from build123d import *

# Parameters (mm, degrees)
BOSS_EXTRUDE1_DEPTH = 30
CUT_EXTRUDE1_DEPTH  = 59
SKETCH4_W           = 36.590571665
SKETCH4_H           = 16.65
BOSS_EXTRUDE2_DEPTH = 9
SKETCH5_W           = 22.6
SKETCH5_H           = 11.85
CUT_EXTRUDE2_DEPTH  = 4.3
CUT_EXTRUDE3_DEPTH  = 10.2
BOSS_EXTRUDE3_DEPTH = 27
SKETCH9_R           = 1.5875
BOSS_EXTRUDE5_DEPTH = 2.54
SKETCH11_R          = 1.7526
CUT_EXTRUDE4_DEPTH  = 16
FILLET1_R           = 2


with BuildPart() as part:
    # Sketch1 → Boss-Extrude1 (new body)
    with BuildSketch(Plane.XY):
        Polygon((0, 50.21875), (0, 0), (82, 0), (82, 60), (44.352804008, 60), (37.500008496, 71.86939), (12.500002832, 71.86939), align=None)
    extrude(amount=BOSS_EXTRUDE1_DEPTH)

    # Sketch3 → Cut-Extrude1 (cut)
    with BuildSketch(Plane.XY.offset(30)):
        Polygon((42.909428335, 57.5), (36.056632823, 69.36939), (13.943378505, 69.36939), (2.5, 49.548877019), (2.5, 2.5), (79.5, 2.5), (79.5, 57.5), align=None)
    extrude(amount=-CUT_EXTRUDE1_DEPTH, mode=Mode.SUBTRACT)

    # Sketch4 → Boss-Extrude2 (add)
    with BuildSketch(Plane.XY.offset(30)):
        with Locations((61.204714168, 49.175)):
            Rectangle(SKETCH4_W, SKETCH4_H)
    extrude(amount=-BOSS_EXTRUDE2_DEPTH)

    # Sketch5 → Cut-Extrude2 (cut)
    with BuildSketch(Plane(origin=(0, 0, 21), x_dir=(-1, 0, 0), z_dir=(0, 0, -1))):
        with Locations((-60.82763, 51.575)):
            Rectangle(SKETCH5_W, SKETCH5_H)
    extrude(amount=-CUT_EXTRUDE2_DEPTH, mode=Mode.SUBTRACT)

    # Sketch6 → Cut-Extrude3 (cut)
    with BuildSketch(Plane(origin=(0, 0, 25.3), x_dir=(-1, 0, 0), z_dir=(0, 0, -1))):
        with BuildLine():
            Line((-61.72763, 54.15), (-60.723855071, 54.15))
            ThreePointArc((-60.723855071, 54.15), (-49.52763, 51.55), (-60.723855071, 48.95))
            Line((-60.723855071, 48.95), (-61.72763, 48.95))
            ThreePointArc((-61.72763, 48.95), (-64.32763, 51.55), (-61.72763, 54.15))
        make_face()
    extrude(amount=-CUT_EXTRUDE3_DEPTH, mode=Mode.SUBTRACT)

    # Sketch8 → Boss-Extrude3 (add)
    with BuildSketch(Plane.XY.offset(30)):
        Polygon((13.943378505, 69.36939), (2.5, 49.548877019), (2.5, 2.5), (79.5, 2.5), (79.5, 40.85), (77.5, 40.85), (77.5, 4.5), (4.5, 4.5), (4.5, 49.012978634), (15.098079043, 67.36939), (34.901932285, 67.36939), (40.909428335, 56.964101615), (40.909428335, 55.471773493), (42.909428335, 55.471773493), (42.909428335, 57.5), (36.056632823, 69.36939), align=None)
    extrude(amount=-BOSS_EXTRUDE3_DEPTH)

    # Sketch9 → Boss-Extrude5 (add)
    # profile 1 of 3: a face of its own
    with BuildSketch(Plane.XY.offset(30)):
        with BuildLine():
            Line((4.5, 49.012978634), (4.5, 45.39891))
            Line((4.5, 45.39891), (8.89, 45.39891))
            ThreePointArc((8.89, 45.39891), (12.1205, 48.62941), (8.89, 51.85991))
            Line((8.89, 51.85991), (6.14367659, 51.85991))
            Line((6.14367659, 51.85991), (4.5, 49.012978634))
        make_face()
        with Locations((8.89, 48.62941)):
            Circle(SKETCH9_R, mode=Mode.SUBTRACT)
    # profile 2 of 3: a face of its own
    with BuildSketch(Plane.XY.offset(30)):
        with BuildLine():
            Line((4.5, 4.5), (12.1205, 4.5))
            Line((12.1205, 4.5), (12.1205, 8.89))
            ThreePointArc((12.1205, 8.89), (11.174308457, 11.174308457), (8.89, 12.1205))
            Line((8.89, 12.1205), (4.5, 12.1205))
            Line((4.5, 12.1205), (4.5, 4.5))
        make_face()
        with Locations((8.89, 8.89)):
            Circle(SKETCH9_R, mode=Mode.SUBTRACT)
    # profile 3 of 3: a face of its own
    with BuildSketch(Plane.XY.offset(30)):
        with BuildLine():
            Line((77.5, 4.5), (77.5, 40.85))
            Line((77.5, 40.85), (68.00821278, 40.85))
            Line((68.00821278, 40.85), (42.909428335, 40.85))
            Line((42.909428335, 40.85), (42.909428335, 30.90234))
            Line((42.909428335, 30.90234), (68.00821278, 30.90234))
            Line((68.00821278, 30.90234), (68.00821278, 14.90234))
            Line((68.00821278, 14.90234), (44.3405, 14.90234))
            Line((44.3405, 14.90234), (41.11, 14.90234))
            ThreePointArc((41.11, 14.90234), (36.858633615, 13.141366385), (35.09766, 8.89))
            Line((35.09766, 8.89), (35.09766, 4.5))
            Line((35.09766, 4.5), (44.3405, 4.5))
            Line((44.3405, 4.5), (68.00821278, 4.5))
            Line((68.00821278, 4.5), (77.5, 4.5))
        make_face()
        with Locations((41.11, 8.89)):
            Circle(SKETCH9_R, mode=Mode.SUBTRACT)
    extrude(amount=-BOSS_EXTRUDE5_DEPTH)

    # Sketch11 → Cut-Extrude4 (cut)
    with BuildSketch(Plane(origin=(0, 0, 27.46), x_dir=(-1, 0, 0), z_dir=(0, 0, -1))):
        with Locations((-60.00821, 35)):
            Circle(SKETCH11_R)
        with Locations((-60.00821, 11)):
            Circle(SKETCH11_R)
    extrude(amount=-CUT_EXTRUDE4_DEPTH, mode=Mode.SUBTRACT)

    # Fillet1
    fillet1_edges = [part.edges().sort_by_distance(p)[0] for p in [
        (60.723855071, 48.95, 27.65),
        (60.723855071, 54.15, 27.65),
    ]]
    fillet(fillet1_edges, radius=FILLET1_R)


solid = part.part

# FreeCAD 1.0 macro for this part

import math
import FreeCAD as App
import Part
import Sketcher
Q = App.Units.Quantity


def edges_at(feature, points):
    """Names of the edges that pass closest to the given points."""
    edges = feature.Shape.Edges
    near = lambda p: min(range(len(edges)), key=lambda i: edges[i].distToShape(Part.Vertex(*p))[0])
    return sorted({f"Edge{near(p) + 1}" for p in points})


def add_polygon(sketch, points):
    """Adds a closed chain of lines whose ends are joined by coincident constraints."""
    first, n = sketch.GeometryCount, len(points)
    for a, b in zip(points, points[1:] + points[:1]):
        sketch.addGeometry(Part.LineSegment(App.Vector(*a, 0), App.Vector(*b, 0)), False)
    for i in range(n):
        sketch.addConstraint(Sketcher.Constraint("Coincident", first + i, 2, first + (i + 1) % n, 1))

doc = App.newDocument("Part")
body = doc.addObject("PartDesign::Body", "Body")

# Sketch on XY plane
sketch1 = body.newObject("Sketcher::SketchObject", "Sketch")
sketch1.AttachmentSupport = (doc.getObject("XY_Plane"), [""])
sketch1.MapMode = "FlatFace"
add_polygon(sketch1, [(0, 50), (0, 0), (82, 0), (82, 60), (44, 60), (38, 72), (13, 72)])  # lines 0-6
sketch1.addConstraint([
    Sketcher.Constraint("Vertical", 0),
    Sketcher.Constraint("Horizontal", 1),
    Sketcher.Constraint("Vertical", 2),
    Sketcher.Constraint("Horizontal", 3),
    Sketcher.Constraint("Horizontal", 5),
    Sketcher.Constraint("Coincident", 0, 2, -1, 1),
    Sketcher.Constraint("DistanceX", 1, 1, 1, 2, 82.0),
    Sketcher.Constraint("DistanceY", 2, 1, 2, 2, 60.0),
    Sketcher.Constraint("Angle", 4, Q("120 deg")),
    Sketcher.Constraint("Angle", 6, Q("-120 deg")),
    Sketcher.Constraint("DistanceY", 0, 2, 0, 1, 50.21875),
    Sketcher.Constraint("DistanceX", 5, 2, 3, 2, 31.852801),
    Sketcher.Constraint("Distance", 4, 13.705591),
])
pad1 = body.newObject("PartDesign::Pad", "Pad")
pad1.Profile = sketch1
pad1.Length = 30

# Sketch on XY plane
sketch2 = body.newObject("Sketcher::SketchObject", "Sketch001")
sketch2.AttachmentSupport = (doc.getObject("XY_Plane"), [""])
sketch2.MapMode = "FlatFace"
sketch2.AttachmentOffset = App.Placement(App.Vector(0, 0, 30), App.Rotation())
add_polygon(sketch2, [(43, 58), (36, 69), (14, 69), (2, 50), (2, 2), (80, 2), (80, 58)])  # lines 0-6
sketch2.addConstraint([
    Sketcher.Constraint("Horizontal", 1),
    Sketcher.Constraint("Vertical", 3),
    Sketcher.Constraint("Horizontal", 4),
    Sketcher.Constraint("Vertical", 5),
    Sketcher.Constraint("Horizontal", 6),
    Sketcher.Constraint("DistanceX", 4, 1, 4, 2, 77.0),
    Sketcher.Constraint("DistanceY", 5, 1, 5, 2, 55.0),
    Sketcher.Constraint("Angle", 0, Q("120 deg")),
    Sketcher.Constraint("Angle", 2, Q("-120 deg")),
    Sketcher.Constraint("DistanceX", -1, 1, 2, 2, 2.5),
    Sketcher.Constraint("DistanceY", -1, 1, 3, 2, 2.5),
    Sketcher.Constraint("DistanceX", 6, 2, 6, 1, 36.590572),
    Sketcher.Constraint("Distance", 0, 13.705591),
    Sketcher.Constraint("DistanceX", 1, 2, 1, 1, 22.113254),
])
pocket1 = body.newObject("PartDesign::Pocket", "Pocket")
pocket1.Profile = sketch2
pocket1.Length = 59

# Sketch on XY plane
sketch3 = body.newObject("Sketcher::SketchObject", "Sketch002")
sketch3.AttachmentSupport = (doc.getObject("XY_Plane"), [""])
sketch3.MapMode = "FlatFace"
sketch3.AttachmentOffset = App.Placement(App.Vector(0, 0, 30), App.Rotation())
add_polygon(sketch3, [(43, 58), (43, 41), (80, 41), (80, 58)])  # lines 0-3
sketch3.addConstraint([
    Sketcher.Constraint("Vertical", 0),
    Sketcher.Constraint("Horizontal", 1),
    Sketcher.Constraint("Vertical", 2),
    Sketcher.Constraint("Horizontal", 3),
    Sketcher.Constraint("DistanceY", 0, 2, 0, 1, 16.65),
    Sketcher.Constraint("DistanceX", -1, 1, 1, 2, 79.5),
    Sketcher.Constraint("DistanceY", -1, 1, 2, 2, 57.5),
    Sketcher.Constraint("DistanceX", 1, 1, 1, 2, 36.590572),
])
pad2 = body.newObject("PartDesign::Pad", "Pad001")
pad2.Profile = sketch3
pad2.Length = 9
pad2.Reversed = True

# Sketch on XY plane
sketch4 = body.newObject("Sketcher::SketchObject", "Sketch003")
sketch4.AttachmentSupport = (doc.getObject("XY_Plane"), [""])
sketch4.MapMode = "FlatFace"
sketch4.AttachmentOffset = App.Placement(App.Vector(0, 0, 21), App.Rotation())
add_polygon(sketch4, [(72, 58), (72, 46), (50, 46), (50, 58)])  # lines 0-3
sketch4.addConstraint([
    Sketcher.Constraint("Vertical", 0),
    Sketcher.Constraint("Horizontal", 1),
    Sketcher.Constraint("Vertical", 2),
    Sketcher.Constraint("Horizontal", 3),
    Sketcher.Constraint("DistanceX", 1, 2, 1, 1, 22.6),
    Sketcher.Constraint("DistanceY", 0, 2, 0, 1, 11.85),
    Sketcher.Constraint("DistanceY", -1, 1, 2, 2, 57.5),
    Sketcher.Constraint("DistanceX", -1, 1, 0, 2, 72.12763),
])
pocket2 = body.newObject("PartDesign::Pocket", "Pocket001")
pocket2.Profile = sketch4
pocket2.Length = 4.3
pocket2.Reversed = True

# Sketch on XY plane
sketch5 = body.newObject("Sketcher::SketchObject", "Sketch004")
sketch5.AttachmentSupport = (doc.getObject("XY_Plane"), [""])
sketch5.MapMode = "FlatFace"
sketch5.AttachmentOffset = App.Placement(App.Vector(0, 0, 25.3), App.Rotation())
sketch5.addGeometry([
    Part.LineSegment(App.Vector(60.7, 54.1, 0), App.Vector(61.7, 54.1, 0)),
    Part.ArcOfCircle(Part.Circle(App.Vector(61.7, 51.5, 0), App.Vector(0, 0, 1), 2.6), math.radians(-90), math.radians(90)),
    Part.LineSegment(App.Vector(61.7, 49, 0), App.Vector(60.7, 49, 0)),
    Part.ArcOfCircle(Part.Circle(App.Vector(55.4, 51.5, 0), App.Vector(0, 0, 1), 5.9), math.radians(26), math.radians(334)),
], False)
sketch5.addConstraint([
    Sketcher.Constraint("Tangent", 0, 2, 1, 2),
    Sketcher.Constraint("Tangent", 1, 1, 2, 1),
    Sketcher.Constraint("Coincident", 2, 2, 3, 2),
    Sketcher.Constraint("Coincident", 3, 1, 0, 1),
    Sketcher.Constraint("Horizontal", 0),
    Sketcher.Constraint("Horizontal", 2),
    Sketcher.Constraint("Horizontal", 1, 3, 3, 3),
    Sketcher.Constraint("Radius", 1, 2.6),
    Sketcher.Constraint("Radius", 3, 5.9),
    Sketcher.Constraint("DistanceX", 3, 3, 1, 3, 6.3),
    Sketcher.Constraint("DistanceY", -1, 1, 1, 3, 51.55),
    Sketcher.Constraint("DistanceX", -1, 1, 1, 3, 61.72763),
])
pocket3 = body.newObject("PartDesign::Pocket", "Pocket002")
pocket3.Profile = sketch5
pocket3.Length = 10.2
pocket3.Reversed = True

# Sketch on XY plane
sketch6 = body.newObject("Sketcher::SketchObject", "Sketch005")
sketch6.AttachmentSupport = (doc.getObject("XY_Plane"), [""])
sketch6.MapMode = "FlatFace"
sketch6.AttachmentOffset = App.Placement(App.Vector(0, 0, 30), App.Rotation())
add_polygon(sketch6, [(13.9, 69.4), (2.5, 49.5), (2.5, 2.5), (79.5, 2.5), (79.5, 40.9), (77.5, 40.9), (77.5, 4.5), (4.5, 4.5), (4.5, 49), (15.1, 67.4), (34.9, 67.4), (40.9, 57), (40.9, 55.5), (42.9, 55.5), (42.9, 57.5), (36.1, 69.4)])  # lines 0-15
sketch6.addConstraint([
    Sketcher.Constraint("Vertical", 1),
    Sketcher.Constraint("Horizontal", 2),
    Sketcher.Constraint("Vertical", 3),
    Sketcher.Constraint("Horizontal", 4),
    Sketcher.Constraint("Vertical", 5),
    Sketcher.Constraint("Horizontal", 6),
    Sketcher.Constraint("Vertical", 7),
    Sketcher.Constraint("Horizontal", 9),
    Sketcher.Constraint("Vertical", 11),
    Sketcher.Constraint("Horizontal", 12),
    Sketcher.Constraint("Vertical", 13),
    Sketcher.Constraint("Horizontal", 15),
    Sketcher.Constraint("Parallel", 0, 8),
    Sketcher.Constraint("Parallel", 10, 14),
    Sketcher.Constraint("Equal", 4, 12),
    Sketcher.Constraint("DistanceX", 2, 1, 2, 2, 77.0),
    Sketcher.Constraint("DistanceX", 4, 2, 4, 1, 2.0),
    Sketcher.Constraint("DistanceX", 6, 2, 6, 1, 73.0),
    Sketcher.Constraint("Angle", 0, Q("-120 deg")),
    Sketcher.Constraint("Angle", 10, Q("-60 deg")),
    Sketcher.Constraint("DistanceY", 2, 2, 5, 2, 2.0),
    Sketcher.Constraint("DistanceY", 9, 2, 14, 2, 2.0),
    Sketcher.Constraint("DistanceY", 3, 1, 3, 2, 38.35),
    Sketcher.Constraint("DistanceX", -1, 1, 0, 2, 2.5),
    Sketcher.Constraint("DistanceY", -1, 1, 1, 2, 2.5),
    Sketcher.Constraint("DistanceY", -1, 1, 13, 2, 57.5),
    Sketcher.Constraint("DistanceY", 7, 1, 7, 2, 44.512979),
    Sketcher.Constraint("DistanceY", 11, 2, 11, 1, 1.492328),
    Sketcher.Constraint("DistanceY", -1, 1, 10, 2, 56.964102),
    Sketcher.Constraint("DistanceY", 7, 2, 0, 2, 0.535898),
    Sketcher.Constraint("Distance", 8, 21.196158),
    Sketcher.Constraint("DistanceX", 9, 1, 9, 2, 19.803853),
])
pad3 = body.newObject("PartDesign::Pad", "Pad002")
pad3.Profile = sketch6
pad3.Length = 27
pad3.Reversed = True

# Sketch on XY plane
sketch7 = body.newObject("Sketcher::SketchObject", "Sketch006")
sketch7.AttachmentSupport = (doc.getObject("XY_Plane"), [""])
sketch7.MapMode = "FlatFace"
sketch7.AttachmentOffset = App.Placement(App.Vector(0, 0, 30), App.Rotation())
sketch7.addGeometry([
    Part.LineSegment(App.Vector(4.5, 49, 0), App.Vector(4.5, 45.4, 0)),  # 0
    Part.LineSegment(App.Vector(4.5, 45.4, 0), App.Vector(8.9, 45.4, 0)),  # 1
    Part.ArcOfCircle(Part.Circle(App.Vector(8.9, 48.6, 0), App.Vector(0, 0, 1), 3.2), math.radians(-90), math.radians(90)),  # 2
    Part.LineSegment(App.Vector(8.9, 51.9, 0), App.Vector(6.1, 51.9, 0)),  # 3
    Part.LineSegment(App.Vector(6.1, 51.9, 0), App.Vector(4.5, 49, 0)),  # 4
    Part.Circle(App.Vector(8.9, 48.6, 0), App.Vector(0, 0, 1), 1.6),  # 5
    Part.LineSegment(App.Vector(4.5, 4.5, 0), App.Vector(12.1, 4.5, 0)),  # 6
    Part.LineSegment(App.Vector(12.1, 4.5, 0), App.Vector(12.1, 8.9, 0)),  # 7
    Part.ArcOfCircle(Part.Circle(App.Vector(8.9, 8.9, 0), App.Vector(0, 0, 1), 3.2), math.radians(0), math.radians(90)),  # 8
    Part.LineSegment(App.Vector(8.9, 12.1, 0), App.Vector(4.5, 12.1, 0)),  # 9
    Part.LineSegment(App.Vector(4.5, 12.1, 0), App.Vector(4.5, 4.5, 0)),  # 10
    Part.Circle(App.Vector(8.9, 8.9, 0), App.Vector(0, 0, 1), 1.6),  # 11
    Part.LineSegment(App.Vector(77.5, 4.5, 0), App.Vector(77.5, 40.9, 0)),  # 12
    Part.LineSegment(App.Vector(77.5, 40.9, 0), App.Vector(42.9, 40.9, 0)),  # 13
    Part.LineSegment(App.Vector(42.9, 40.9, 0), App.Vector(42.9, 30.9, 0)),  # 14
    Part.LineSegment(App.Vector(42.9, 30.9, 0), App.Vector(68, 30.9, 0)),  # 15
    Part.LineSegment(App.Vector(68, 30.9, 0), App.Vector(68, 14.9, 0)),  # 16
    Part.LineSegment(App.Vector(68, 14.9, 0), App.Vector(41.1, 14.9, 0)),  # 17
    Part.ArcOfCircle(Part.Circle(App.Vector(41.1, 8.9, 0), App.Vector(0, 0, 1), 6), math.radians(90), math.radians(180)),  # 18
    Part.LineSegment(App.Vector(35.1, 8.9, 0), App.Vector(35.1, 4.5, 0)),  # 19
    Part.LineSegment(App.Vector(35.1, 4.5, 0), App.Vector(77.5, 4.5, 0)),  # 20
    Part.Circle(App.Vector(41.1, 8.9, 0), App.Vector(0, 0, 1), 1.6),  # 21
], False)
sketch7.addConstraint([
    Sketcher.Constraint("Coincident", 0, 2, 1, 1),
    Sketcher.Constraint("Tangent", 1, 2, 2, 1),
    Sketcher.Constraint("Tangent", 2, 2, 3, 1),
    Sketcher.Constraint("Coincident", 3, 2, 4, 1),
    Sketcher.Constraint("Coincident", 4, 2, 0, 1),
    Sketcher.Constraint("Coincident", 6, 2, 7, 1),
    Sketcher.Constraint("Tangent", 7, 2, 8, 1),
    Sketcher.Constraint("Tangent", 8, 2, 9, 1),
    Sketcher.Constraint("Coincident", 9, 2, 10, 1),
    Sketcher.Constraint("Coincident", 10, 2, 6, 1),
    Sketcher.Constraint("Coincident", 12, 2, 13, 1),
    Sketcher.Constraint("Coincident", 13, 2, 14, 1),
    Sketcher.Constraint("Coincident", 14, 2, 15, 1),
    Sketcher.Constraint("Coincident", 15, 2, 16, 1),
    Sketcher.Constraint("Coincident", 16, 2, 17, 1),
    Sketcher.Constraint("Tangent", 17, 2, 18, 1),
    Sketcher.Constraint("Tangent", 18, 2, 19, 1),
    Sketcher.Constraint("Coincident", 19, 2, 20, 1),
    Sketcher.Constraint("Coincident", 20, 2, 12, 1),
    Sketcher.Constraint("Vertical", 0),
    Sketcher.Constraint("Horizontal", 1),
    Sketcher.Constraint("Horizontal", 3),
    Sketcher.Constraint("Horizontal", 6),
    Sketcher.Constraint("Vertical", 7),
    Sketcher.Constraint("Horizontal", 9),
    Sketcher.Constraint("Vertical", 10),
    Sketcher.Constraint("Vertical", 12),
    Sketcher.Constraint("Horizontal", 13),
    Sketcher.Constraint("Vertical", 14),
    Sketcher.Constraint("Horizontal", 15),
    Sketcher.Constraint("Vertical", 16),
    Sketcher.Constraint("Horizontal", 17),
    Sketcher.Constraint("Vertical", 19),
    Sketcher.Constraint("Horizontal", 20),
    Sketcher.Constraint("Coincident", 5, 3, 2, 3),
    Sketcher.Constraint("Coincident", 11, 3, 8, 3),
    Sketcher.Constraint("Coincident", 21, 3, 18, 3),
    Sketcher.Constraint("Equal", 2, 8),
    Sketcher.Constraint("Equal", 5, 11),
    Sketcher.Constraint("Equal", 11, 21),
    Sketcher.Constraint("Horizontal", 11, 3, 18, 3),
    Sketcher.Constraint("Horizontal", 10, 2, 19, 2),
    Sketcher.Constraint("Vertical", 5, 3, 8, 3),
    Sketcher.Constraint("Vertical", 4, 2, 9, 2),
    Sketcher.Constraint("Equal", 9, 7),
    Sketcher.Constraint("DistanceY", 16, 2, 16, 1, 16.0),
    Sketcher.Constraint("Angle", 4, Q("-120 deg")),
    Sketcher.Constraint("Diameter", 5, 3.175),
    Sketcher.Constraint("DistanceX", 1, 1, 1, 2, 4.39),
    Sketcher.Constraint("DistanceY", 12, 1, 12, 2, 36.35),
    Sketcher.Constraint("DistanceX", -1, 1, 0, 2, 4.5),
    Sketcher.Constraint("DistanceY", -1, 1, 6, 2, 4.5),
    Sketcher.Constraint("DistanceX", -1, 1, 12, 2, 77.5),
    Sketcher.Constraint("Radius", 2, 3.2305),
    Sketcher.Constraint("DistanceX", -1, 1, 18, 3, 41.11),
    Sketcher.Constraint("Radius", 18, 6.01234),
    Sketcher.Constraint("DistanceX", 13, 2, 13, 1, 34.590572),
    Sketcher.Constraint("DistanceY", 0, 2, 0, 1, 3.614069),
    Sketcher.Constraint("DistanceX", 15, 1, 15, 2, 25.098784),
    Sketcher.Constraint("DistanceY", -1, 1, 2, 3, 48.62941),
])
pad4 = body.newObject("PartDesign::Pad", "Pad003")
pad4.Profile = sketch7
pad4.Length = 2.54
pad4.Reversed = True

# Sketch on XY plane
sketch8 = body.newObject("Sketcher::SketchObject", "Sketch007")
sketch8.AttachmentSupport = (doc.getObject("XY_Plane"), [""])
sketch8.MapMode = "FlatFace"
sketch8.AttachmentOffset = App.Placement(App.Vector(0, 0, 27.46), App.Rotation())
sketch8.addGeometry([
    Part.Circle(App.Vector(60, 35, 0), App.Vector(0, 0, 1), 1.8),
    Part.Circle(App.Vector(60, 11, 0), App.Vector(0, 0, 1), 1.8),
], False)
sketch8.addConstraint([
    Sketcher.Constraint("Equal", 0, 1),
    Sketcher.Constraint("Vertical", 0, 3, 1, 3),
    Sketcher.Constraint("DistanceY", -1, 1, 0, 3, 35.0),
    Sketcher.Constraint("DistanceY", -1, 1, 1, 3, 11.0),
    Sketcher.Constraint("Diameter", 0, 3.5052),
    Sketcher.Constraint("DistanceX", -1, 1, 0, 3, 60.00821),
])
pocket4 = body.newObject("PartDesign::Pocket", "Pocket003")
pocket4.Profile = sketch8
pocket4.Length = 16
pocket4.Reversed = True
doc.recompute()

fillet = body.newObject("PartDesign::Fillet", "Fillet")
fillet.Base = (pocket4, edges_at(pocket4, [(60.724, 48.95, 27.65), (60.724, 54.15, 27.65)]))
fillet.Radius = 2

doc.recompute()
